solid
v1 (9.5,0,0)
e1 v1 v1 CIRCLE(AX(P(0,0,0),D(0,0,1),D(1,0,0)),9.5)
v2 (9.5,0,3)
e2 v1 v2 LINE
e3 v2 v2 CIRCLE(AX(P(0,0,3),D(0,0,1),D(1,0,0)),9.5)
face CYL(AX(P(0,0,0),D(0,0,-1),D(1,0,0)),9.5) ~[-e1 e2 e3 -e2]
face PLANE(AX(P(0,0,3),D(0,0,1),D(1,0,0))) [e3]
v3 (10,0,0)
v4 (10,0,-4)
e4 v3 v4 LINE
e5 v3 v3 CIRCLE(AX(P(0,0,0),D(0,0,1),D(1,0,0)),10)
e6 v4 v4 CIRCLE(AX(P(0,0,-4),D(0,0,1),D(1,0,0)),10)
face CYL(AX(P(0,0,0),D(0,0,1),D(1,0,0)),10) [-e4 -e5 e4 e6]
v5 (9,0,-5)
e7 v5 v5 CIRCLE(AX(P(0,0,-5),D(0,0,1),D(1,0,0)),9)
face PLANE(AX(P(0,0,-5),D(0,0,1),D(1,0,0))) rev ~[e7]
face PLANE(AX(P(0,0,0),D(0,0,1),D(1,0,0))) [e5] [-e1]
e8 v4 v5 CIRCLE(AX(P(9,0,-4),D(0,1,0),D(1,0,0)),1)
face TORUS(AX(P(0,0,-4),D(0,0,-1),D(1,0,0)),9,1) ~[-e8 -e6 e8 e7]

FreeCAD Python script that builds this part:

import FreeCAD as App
import Part
import Sketcher


def edges_at(feature, points):
    """Names of the edges that pass closest to the given points."""
    edges = feature.Shape.Edges
    near = lambda p: min(range(len(edges)), key=lambda i: edges[i].distToShape(Part.Vertex(*p))[0])
    return sorted({f"Edge{near(p) + 1}" for p in points})

doc = App.newDocument("Part")
params = doc.addObject("Spreadsheet::Sheet", "Params")
for row, (alias, value) in enumerate([
    ("sketch1_diameter", "19 mm"),
    ("pad1_length", "3 mm"),
    ("sketch2_diameter", "20 mm"),
    ("pad2_length", "5 mm"),
    ("fillet_radius", "1 mm"),
], start=1):
    params.set(f"A{row}", alias)
    params.set(f"B{row}", "=" + value)
    params.setAlias(f"B{row}", alias)

body = doc.addObject("PartDesign::Body", "Body")

sketch1 = body.newObject("Sketcher::SketchObject", "Sketch")
sketch1.AttachmentSupport = (doc.getObject("XY_Plane"), [""])
sketch1.MapMode = "FlatFace"
sketch1.addGeometry(Part.Circle(App.Vector(0, 0, 0), App.Vector(0, 0, 1), 10), False)
sketch1.addConstraint([
    Sketcher.Constraint("Coincident", 0, 3, -1, 1),
    Sketcher.Constraint("Diameter", 0, 19.0),
])
sketch1.setExpression("Constraints[1]", "Params.sketch1_diameter")
pad1 = body.newObject("PartDesign::Pad", "Pad")
pad1.Profile = sketch1
pad1.setExpression("Length", "Params.pad1_length")

sketch2 = body.newObject("Sketcher::SketchObject", "Sketch001")
sketch2.AttachmentSupport = (doc.getObject("XY_Plane"), [""])
sketch2.MapMode = "FlatFace"
sketch2.addGeometry(Part.Circle(App.Vector(0, 0, 0), App.Vector(0, 0, 1), 10), False)
sketch2.addConstraint([
    Sketcher.Constraint("Coincident", 0, 3, -1, 1),
    Sketcher.Constraint("Diameter", 0, 20.0),
])
sketch2.setExpression("Constraints[1]", "Params.sketch2_diameter")
pad2 = body.newObject("PartDesign::Pad", "Pad001")
pad2.Profile = sketch2
pad2.setExpression("Length", "Params.pad2_length")
pad2.Reversed = True
doc.recompute()

fillet = body.newObject("PartDesign::Fillet", "Fillet")
fillet.Base = (pad2, edges_at(pad2, [(-10, 0, -5)]))
fillet.setExpression("Radius", "Params.fillet_radius")

doc.recompute()
